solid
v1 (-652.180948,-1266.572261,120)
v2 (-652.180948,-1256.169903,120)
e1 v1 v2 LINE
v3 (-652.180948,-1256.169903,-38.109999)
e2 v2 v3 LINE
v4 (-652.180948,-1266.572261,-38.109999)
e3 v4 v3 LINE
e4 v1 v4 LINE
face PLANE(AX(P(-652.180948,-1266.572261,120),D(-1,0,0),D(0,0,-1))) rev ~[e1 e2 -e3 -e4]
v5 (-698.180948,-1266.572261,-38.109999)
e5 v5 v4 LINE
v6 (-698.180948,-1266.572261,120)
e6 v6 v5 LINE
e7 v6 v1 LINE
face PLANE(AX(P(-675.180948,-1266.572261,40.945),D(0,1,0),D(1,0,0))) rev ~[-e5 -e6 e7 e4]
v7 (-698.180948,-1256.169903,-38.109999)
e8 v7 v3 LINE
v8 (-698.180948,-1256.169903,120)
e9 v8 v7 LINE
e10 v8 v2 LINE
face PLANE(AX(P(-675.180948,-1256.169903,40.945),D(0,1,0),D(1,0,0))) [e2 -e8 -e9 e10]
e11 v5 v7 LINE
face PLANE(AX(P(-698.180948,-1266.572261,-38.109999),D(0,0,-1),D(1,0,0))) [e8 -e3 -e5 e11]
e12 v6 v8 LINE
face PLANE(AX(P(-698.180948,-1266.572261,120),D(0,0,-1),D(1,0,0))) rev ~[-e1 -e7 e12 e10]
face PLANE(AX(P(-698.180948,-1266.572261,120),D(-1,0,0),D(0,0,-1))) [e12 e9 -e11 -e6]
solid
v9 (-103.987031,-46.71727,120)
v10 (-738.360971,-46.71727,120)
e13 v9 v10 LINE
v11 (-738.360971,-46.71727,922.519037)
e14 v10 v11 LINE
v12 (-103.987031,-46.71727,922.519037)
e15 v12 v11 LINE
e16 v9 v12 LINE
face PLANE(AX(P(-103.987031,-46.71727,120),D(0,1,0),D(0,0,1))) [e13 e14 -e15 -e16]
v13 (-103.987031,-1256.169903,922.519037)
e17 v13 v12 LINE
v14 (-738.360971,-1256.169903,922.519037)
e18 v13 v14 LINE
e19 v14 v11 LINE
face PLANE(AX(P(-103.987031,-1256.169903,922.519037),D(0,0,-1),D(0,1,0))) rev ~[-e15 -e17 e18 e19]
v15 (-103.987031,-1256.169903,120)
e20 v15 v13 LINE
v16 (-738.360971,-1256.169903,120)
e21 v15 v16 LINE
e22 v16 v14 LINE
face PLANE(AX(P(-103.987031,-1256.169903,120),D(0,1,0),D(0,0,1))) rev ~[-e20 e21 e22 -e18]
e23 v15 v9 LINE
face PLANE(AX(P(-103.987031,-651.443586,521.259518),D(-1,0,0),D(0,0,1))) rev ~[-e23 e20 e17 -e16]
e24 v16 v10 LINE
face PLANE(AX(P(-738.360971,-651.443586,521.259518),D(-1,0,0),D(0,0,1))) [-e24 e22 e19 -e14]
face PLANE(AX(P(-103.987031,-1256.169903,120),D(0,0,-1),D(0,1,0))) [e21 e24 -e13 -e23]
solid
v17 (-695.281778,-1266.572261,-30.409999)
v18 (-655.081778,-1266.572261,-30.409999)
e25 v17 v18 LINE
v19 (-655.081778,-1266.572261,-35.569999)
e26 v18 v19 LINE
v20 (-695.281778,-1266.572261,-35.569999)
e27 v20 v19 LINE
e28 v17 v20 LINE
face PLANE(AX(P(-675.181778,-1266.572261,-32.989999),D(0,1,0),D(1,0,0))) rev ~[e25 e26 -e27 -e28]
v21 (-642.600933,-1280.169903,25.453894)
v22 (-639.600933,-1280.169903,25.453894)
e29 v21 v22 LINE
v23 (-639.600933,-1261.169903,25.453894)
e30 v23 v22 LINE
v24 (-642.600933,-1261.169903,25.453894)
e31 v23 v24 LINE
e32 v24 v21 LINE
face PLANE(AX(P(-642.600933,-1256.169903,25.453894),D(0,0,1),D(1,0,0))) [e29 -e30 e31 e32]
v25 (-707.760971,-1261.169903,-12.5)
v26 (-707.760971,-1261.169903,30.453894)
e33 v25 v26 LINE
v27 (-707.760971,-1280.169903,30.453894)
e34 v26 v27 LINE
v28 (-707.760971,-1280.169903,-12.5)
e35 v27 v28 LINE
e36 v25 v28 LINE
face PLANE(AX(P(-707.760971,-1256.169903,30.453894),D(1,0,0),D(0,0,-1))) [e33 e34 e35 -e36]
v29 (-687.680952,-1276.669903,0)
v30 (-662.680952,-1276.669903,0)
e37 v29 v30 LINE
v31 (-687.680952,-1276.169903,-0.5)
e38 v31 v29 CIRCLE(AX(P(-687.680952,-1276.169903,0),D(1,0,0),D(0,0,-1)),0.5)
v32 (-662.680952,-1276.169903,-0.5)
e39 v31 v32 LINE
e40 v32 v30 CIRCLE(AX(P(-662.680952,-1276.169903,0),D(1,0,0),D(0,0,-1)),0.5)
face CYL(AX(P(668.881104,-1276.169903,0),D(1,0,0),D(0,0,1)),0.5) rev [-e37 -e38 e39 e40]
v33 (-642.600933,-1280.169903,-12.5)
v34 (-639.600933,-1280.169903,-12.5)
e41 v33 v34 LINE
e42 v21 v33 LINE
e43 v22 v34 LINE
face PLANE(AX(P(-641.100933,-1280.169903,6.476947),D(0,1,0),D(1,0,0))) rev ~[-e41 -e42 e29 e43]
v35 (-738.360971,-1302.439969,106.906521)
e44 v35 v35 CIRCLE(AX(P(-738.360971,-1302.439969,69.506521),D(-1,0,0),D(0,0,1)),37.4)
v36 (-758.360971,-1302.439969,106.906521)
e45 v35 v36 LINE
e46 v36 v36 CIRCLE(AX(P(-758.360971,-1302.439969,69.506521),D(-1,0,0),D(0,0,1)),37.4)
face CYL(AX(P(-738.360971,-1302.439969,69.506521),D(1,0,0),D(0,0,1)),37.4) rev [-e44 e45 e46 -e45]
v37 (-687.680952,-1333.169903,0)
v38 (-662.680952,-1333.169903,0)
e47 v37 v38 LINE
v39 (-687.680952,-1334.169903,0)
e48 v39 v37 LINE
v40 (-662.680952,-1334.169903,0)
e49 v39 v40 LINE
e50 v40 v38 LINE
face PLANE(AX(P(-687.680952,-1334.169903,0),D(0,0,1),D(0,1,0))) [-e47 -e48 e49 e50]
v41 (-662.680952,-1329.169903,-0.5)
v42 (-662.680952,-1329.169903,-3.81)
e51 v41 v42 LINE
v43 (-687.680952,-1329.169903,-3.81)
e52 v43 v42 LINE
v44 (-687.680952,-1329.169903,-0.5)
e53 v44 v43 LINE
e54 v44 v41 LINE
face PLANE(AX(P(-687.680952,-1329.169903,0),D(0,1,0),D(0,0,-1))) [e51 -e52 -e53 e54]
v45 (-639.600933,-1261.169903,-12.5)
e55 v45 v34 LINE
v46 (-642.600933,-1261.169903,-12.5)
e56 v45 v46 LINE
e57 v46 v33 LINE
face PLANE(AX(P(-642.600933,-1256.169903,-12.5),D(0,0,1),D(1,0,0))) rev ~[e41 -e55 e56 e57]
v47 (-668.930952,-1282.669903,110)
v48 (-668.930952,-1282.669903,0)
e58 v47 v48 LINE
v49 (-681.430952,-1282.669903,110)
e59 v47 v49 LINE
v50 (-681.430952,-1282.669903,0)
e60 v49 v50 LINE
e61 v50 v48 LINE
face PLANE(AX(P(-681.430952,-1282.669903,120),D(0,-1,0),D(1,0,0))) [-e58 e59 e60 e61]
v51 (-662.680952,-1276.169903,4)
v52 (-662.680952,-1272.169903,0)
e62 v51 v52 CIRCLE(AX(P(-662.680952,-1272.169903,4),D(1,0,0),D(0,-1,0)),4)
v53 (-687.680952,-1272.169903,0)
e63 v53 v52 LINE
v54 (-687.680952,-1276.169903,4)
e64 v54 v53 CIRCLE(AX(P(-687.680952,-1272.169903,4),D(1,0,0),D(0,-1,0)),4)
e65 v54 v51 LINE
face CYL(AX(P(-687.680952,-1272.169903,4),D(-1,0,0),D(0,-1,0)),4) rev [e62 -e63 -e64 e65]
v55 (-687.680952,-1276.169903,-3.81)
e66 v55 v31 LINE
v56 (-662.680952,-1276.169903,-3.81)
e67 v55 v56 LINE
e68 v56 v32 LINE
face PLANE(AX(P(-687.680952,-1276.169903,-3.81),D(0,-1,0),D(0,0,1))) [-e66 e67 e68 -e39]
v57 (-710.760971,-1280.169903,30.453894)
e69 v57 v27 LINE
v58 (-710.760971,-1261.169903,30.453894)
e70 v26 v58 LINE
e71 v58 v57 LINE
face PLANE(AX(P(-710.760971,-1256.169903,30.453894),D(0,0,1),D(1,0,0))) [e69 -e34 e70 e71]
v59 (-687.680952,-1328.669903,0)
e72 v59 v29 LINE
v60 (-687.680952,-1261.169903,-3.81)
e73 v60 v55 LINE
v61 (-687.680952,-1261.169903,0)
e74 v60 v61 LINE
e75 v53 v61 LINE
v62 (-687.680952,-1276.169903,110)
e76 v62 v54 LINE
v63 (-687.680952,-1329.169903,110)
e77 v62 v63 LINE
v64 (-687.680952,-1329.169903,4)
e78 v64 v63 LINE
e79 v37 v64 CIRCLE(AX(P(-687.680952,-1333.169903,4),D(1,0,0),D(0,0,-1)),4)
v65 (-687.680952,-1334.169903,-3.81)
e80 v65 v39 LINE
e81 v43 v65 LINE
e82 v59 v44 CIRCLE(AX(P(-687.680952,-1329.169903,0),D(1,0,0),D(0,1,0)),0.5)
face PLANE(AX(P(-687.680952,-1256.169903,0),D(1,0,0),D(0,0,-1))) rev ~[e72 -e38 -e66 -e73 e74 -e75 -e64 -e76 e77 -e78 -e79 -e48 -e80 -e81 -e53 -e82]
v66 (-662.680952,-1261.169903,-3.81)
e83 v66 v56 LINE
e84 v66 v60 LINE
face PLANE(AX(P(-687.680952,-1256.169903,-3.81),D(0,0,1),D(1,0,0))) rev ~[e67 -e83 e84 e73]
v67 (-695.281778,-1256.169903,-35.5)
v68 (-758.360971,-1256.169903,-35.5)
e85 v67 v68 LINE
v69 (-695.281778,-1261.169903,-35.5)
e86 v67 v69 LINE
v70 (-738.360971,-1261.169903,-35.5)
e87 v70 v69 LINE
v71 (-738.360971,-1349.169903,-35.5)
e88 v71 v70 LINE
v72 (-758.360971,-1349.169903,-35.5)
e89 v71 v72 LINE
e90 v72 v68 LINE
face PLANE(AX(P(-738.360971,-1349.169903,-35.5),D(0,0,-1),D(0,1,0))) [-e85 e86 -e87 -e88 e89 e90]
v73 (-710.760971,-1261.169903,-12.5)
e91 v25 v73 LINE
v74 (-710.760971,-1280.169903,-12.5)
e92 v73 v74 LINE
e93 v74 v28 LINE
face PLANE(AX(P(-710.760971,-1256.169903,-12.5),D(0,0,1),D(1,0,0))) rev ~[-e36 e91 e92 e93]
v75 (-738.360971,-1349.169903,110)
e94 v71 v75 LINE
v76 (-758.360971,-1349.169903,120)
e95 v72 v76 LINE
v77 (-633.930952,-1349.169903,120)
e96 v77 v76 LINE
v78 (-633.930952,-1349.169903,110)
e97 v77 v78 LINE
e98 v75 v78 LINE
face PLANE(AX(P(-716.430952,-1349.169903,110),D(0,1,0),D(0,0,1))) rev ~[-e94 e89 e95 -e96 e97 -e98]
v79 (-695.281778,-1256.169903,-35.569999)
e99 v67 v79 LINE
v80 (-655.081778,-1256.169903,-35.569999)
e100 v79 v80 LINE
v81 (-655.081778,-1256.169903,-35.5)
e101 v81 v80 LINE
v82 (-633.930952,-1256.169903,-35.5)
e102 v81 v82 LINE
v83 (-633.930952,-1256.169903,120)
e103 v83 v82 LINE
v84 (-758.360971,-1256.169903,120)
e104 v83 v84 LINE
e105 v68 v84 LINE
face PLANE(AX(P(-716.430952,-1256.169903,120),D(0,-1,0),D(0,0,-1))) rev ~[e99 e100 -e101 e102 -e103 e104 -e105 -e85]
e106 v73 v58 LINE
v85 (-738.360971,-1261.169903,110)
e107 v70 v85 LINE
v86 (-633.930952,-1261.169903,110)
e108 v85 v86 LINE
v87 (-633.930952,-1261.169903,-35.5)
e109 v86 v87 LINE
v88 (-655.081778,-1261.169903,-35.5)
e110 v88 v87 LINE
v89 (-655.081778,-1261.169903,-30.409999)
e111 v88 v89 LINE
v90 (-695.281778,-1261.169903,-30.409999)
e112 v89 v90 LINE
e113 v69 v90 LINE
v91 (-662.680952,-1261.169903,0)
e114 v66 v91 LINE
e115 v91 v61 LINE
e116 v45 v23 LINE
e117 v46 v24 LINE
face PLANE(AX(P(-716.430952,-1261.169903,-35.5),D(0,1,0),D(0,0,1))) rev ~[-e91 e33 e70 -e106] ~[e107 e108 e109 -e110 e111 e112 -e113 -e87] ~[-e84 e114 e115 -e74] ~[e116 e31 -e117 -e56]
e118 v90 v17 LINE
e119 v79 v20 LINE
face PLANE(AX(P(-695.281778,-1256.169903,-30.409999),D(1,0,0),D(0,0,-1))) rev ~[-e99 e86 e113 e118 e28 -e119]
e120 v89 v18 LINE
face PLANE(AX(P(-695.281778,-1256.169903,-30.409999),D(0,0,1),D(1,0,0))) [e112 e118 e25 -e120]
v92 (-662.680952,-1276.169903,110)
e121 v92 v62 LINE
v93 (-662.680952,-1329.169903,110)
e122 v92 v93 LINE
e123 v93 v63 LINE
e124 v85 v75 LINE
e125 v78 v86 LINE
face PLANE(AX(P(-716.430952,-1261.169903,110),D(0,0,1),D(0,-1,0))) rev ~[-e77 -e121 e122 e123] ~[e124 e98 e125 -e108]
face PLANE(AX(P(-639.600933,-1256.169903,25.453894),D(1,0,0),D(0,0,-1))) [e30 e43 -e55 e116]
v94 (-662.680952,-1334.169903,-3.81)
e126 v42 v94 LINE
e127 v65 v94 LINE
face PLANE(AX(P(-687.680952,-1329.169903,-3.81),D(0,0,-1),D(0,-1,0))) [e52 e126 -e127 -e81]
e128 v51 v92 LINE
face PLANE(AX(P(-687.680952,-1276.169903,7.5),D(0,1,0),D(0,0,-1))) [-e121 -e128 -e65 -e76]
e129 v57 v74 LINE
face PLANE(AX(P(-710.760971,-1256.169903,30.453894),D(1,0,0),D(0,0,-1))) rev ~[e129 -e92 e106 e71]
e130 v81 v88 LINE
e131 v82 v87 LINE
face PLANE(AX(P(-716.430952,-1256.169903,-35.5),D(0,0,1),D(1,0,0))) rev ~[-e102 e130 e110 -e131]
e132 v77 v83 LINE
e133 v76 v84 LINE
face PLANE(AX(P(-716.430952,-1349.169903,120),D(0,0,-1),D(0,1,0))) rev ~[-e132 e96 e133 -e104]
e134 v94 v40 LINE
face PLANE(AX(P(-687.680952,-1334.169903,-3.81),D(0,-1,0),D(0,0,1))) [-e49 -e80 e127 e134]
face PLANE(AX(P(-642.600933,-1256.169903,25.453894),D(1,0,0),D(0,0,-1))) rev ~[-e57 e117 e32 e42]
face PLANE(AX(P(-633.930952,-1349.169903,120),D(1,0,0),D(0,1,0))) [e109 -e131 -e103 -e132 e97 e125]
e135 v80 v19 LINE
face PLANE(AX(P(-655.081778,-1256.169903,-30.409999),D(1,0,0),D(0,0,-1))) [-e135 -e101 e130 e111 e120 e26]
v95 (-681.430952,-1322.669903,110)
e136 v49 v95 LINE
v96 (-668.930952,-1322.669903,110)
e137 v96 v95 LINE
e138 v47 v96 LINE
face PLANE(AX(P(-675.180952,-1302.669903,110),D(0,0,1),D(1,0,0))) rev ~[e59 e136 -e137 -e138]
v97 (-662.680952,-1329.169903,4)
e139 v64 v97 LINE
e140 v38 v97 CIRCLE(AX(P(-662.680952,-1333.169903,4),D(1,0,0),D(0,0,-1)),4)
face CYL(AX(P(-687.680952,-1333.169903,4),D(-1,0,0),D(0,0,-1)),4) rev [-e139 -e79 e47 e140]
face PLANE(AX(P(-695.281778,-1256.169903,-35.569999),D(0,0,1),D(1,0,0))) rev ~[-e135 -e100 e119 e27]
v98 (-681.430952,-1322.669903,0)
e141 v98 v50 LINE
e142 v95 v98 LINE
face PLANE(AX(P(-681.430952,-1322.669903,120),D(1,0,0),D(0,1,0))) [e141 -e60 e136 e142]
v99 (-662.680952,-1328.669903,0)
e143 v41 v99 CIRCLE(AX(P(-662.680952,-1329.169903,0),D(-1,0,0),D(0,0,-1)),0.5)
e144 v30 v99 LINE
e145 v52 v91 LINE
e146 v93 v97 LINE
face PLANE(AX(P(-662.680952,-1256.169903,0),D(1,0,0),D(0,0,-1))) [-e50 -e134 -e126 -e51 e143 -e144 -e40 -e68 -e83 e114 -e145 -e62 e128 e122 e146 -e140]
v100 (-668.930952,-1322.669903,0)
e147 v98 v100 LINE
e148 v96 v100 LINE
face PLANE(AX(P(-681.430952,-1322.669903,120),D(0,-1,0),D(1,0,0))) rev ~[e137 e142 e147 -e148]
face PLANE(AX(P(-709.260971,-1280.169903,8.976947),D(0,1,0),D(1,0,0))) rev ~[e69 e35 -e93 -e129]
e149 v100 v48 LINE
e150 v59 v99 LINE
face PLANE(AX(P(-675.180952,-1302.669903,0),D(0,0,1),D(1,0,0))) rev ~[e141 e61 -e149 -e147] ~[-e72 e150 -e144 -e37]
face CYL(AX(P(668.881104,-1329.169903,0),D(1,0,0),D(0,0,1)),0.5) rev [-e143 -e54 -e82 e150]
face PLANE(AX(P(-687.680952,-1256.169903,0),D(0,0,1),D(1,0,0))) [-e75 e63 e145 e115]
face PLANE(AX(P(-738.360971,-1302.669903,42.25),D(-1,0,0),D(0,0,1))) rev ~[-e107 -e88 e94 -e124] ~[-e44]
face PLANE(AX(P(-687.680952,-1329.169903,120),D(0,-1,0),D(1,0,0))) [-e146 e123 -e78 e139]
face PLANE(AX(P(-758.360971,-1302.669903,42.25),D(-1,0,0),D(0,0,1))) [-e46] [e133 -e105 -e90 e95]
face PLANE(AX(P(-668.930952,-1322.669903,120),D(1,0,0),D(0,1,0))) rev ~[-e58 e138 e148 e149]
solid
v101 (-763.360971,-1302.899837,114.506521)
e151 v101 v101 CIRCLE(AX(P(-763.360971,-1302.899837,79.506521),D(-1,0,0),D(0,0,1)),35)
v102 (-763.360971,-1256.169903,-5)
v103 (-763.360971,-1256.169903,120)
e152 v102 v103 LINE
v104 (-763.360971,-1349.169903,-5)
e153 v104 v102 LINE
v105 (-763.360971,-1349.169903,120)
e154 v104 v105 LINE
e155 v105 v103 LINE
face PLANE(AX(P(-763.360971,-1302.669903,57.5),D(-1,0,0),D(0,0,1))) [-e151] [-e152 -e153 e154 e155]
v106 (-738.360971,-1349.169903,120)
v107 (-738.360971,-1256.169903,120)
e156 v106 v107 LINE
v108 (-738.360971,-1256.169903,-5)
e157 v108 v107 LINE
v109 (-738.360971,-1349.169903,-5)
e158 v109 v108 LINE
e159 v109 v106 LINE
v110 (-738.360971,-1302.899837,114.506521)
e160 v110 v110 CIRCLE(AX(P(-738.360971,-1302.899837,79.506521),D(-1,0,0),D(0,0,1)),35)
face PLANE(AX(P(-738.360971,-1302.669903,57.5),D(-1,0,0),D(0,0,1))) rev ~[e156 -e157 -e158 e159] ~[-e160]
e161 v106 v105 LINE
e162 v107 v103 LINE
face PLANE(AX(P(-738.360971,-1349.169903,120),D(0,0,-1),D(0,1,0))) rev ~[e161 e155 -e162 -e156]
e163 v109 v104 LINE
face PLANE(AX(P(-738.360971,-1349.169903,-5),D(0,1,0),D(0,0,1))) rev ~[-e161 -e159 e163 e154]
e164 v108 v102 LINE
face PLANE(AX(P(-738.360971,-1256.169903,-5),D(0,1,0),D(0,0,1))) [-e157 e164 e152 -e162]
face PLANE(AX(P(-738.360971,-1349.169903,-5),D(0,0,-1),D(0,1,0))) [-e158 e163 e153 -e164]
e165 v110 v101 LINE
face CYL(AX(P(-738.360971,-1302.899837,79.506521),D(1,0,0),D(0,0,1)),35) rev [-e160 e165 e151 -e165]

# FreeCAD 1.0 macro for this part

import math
import FreeCAD as App
import Part
import Sketcher

V = App.Vector


def add_polygon(sketch, points):
    """Adds a closed chain of lines whose ends are joined by coincident constraints."""
    first, n = sketch.GeometryCount, len(points)
    for a, b in zip(points, points[1:] + points[:1]):
        sketch.addGeometry(Part.LineSegment(App.Vector(*a, 0), App.Vector(*b, 0)), False)
    for i in range(n):
        sketch.addConstraint(Sketcher.Constraint("Coincident", first + i, 2, first + (i + 1) % n, 1))

doc = App.newDocument("Part")
params = doc.addObject("Spreadsheet::Sheet", "Params")
for row, (alias, value) in enumerate([
    ("sketch1_width", "25 mm"),
    ("sketch1_height", "53 mm"),
    ("sketch1_height2", "40 mm"),
    ("sketch1_width2", "12.5 mm"),
    ("pad1_length", "120 mm"),
    ("sketch2_height", "93 mm"),
    ("sketch2_width", "82.5 mm"),
    ("pad2_length", "10 mm"),
    ("sketch3_radius", "4 mm"),
    ("sketch3_width", "4 mm"),
    ("sketch3_width2", "1 mm"),
    ("sketch3_height", "7.5 mm"),
    ("sketch3_height2", "3.81 mm"),
    ("pad3_length", "25 mm"),
    ("sketch4_diameter", "1 mm"),
    ("sketch5_width", "25 mm"),
    ("sketch5_height", "3.81 mm"),
    ("pad4_length", "15 mm"),
    ("sketch6_width", "3 mm"),
    ("pad5_length", "24 mm"),
    ("sketch7_width", "3 mm"),
    ("pad6_length", "24 mm"),
    ("sketch8_width", "40.2 mm"),
    ("sketch8_height", "5.16 mm"),
    ("pad7_length", "10.402358 mm"),
    ("sketch9_width", "82.5 mm"),
    ("sketch9_height", "155.5 mm"),
    ("pad8_length", "5 mm"),
    ("sketch10_diameter", "74.8 mm"),
    ("sketch10_width", "93 mm"),
    ("sketch10_height", "155.5 mm"),
    ("pad9_length", "20 mm"),
    ("sketch11_width", "93 mm"),
    ("sketch11_width2", "5 mm"),
    ("sketch11_height", "10 mm"),
    ("sketch11_height2", "155.5 mm"),
    ("pad10_length", "21.930019 mm"),
    ("sketch12_diameter", "70 mm"),
    ("sketch12_width", "93 mm"),
    ("sketch12_height", "125 mm"),
    ("pad11_length", "25 mm"),
    ("pad12_length", "634.373941 mm"),
    ("sketch14_width", "46 mm"),
    ("sketch14_height", "158.109999 mm"),
    ("pad13_length", "10.402358 mm"),
], start=1):
    params.set(f"A{row}", alias)
    params.set(f"B{row}", "=" + value)
    params.setAlias(f"B{row}", alias)

body = doc.addObject("PartDesign::Body", "Body")

# Sketch on XY plane
sketch1 = doc.addObject("Sketcher::SketchObject", "Sketch")
body.addObject(sketch1)
sketch1.AttachmentSupport = (doc.XY_Plane, [""])
sketch1.MapMode = "FlatFace"
sketch1.AttachmentOffset = App.Placement(V(0, 0, 120), App.Rotation())
add_polygon(sketch1, [(-688, -1276), (-688, -1329), (-663, -1329), (-663, -1276)])  # lines 0-3
add_polygon(sketch1, [(-669, -1323), (-681, -1323), (-681, -1283), (-669, -1283)])  # lines 4-7
sketch1.addConstraint([
    Sketcher.Constraint("Vertical", 0),
    Sketcher.Constraint("Horizontal", 1),
    Sketcher.Constraint("Vertical", 2),
    Sketcher.Constraint("Horizontal", 3),
    Sketcher.Constraint("Horizontal", 4),
    Sketcher.Constraint("Vertical", 5),
    Sketcher.Constraint("Horizontal", 6),
    Sketcher.Constraint("Vertical", 7),
    Sketcher.Constraint("DistanceX", 1, 1, 1, 2, 25.0),
    Sketcher.Constraint("DistanceY", 0, 2, 0, 1, 53.0),
    Sketcher.Constraint("DistanceY", 5, 1, 5, 2, 40.0),
    Sketcher.Constraint("DistanceX", 4, 2, 4, 1, 12.5),
    Sketcher.Constraint("DistanceY", 0, 2, 4, 2, 6.5),
    Sketcher.Constraint("DistanceX", 0, 2, 4, 2, 6.25),
    Sketcher.Constraint("DistanceX", 0, 2, -1, 1, 687.680952),
    Sketcher.Constraint("DistanceY", 0, 2, -1, 1, 1329.169903),
])
sketch1.setExpression("Constraints[16]", "Params.sketch1_width")
sketch1.setExpression("Constraints[17]", "Params.sketch1_height")
sketch1.setExpression("Constraints[18]", "Params.sketch1_height2")
sketch1.setExpression("Constraints[19]", "Params.sketch1_width2")
pad1 = doc.addObject("PartDesign::Pad", "Pad")
body.addObject(pad1)
pad1.Profile = sketch1
pad1.setExpression("Length", "Params.pad1_length")
pad1.Reversed = True

# Sketch on XY plane
sketch2 = doc.addObject("Sketcher::SketchObject", "Sketch001")
body.addObject(sketch2)
sketch2.AttachmentSupport = (doc.XY_Plane, [""])
sketch2.MapMode = "FlatFace"
sketch2.AttachmentOffset = App.Placement(V(0, 0, 120), App.Rotation())
add_polygon(sketch2, [(-716, -1256), (-716, -1349), (-634, -1349), (-634, -1256)])  # lines 0-3
sketch2.addConstraint([
    Sketcher.Constraint("Vertical", 0),
    Sketcher.Constraint("Horizontal", 1),
    Sketcher.Constraint("Vertical", 2),
    Sketcher.Constraint("Horizontal", 3),
    Sketcher.Constraint("DistanceY", 0, 2, 0, 1, 93.0),
    Sketcher.Constraint("DistanceX", 1, 1, 1, 2, 82.5),
    Sketcher.Constraint("DistanceX", 0, 2, -1, 1, 716.430952),
    Sketcher.Constraint("DistanceY", 0, 2, -1, 1, 1349.169903),
])
sketch2.setExpression("Constraints[8]", "Params.sketch2_height")
sketch2.setExpression("Constraints[9]", "Params.sketch2_width")
pad2 = doc.addObject("PartDesign::Pad", "Pad001")
body.addObject(pad2)
pad2.Profile = sketch2
pad2.setExpression("Length", "Params.pad2_length")
pad2.Reversed = True

# Sketch on YZ plane
sketch3 = doc.addObject("Sketcher::SketchObject", "Sketch002")
body.addObject(sketch3)
sketch3.AttachmentSupport = (doc.YZ_Plane, [""])
sketch3.MapMode = "FlatFace"
sketch3.AttachmentOffset = App.Placement(V(0, 0, -687.680952), App.Rotation())
sketch3.addGeometry([
    Part.LineSegment(V(-1276.2, -3.8, 0), V(-1276.2, 0, 0)),  # 0
    Part.LineSegment(V(-1276.2, 0, 0), V(-1280.2, 0, 0)),  # 1
    Part.LineSegment(V(-1280.2, 0, 0), V(-1280.2, 7.5, 0)),  # 2
    Part.LineSegment(V(-1280.2, 7.5, 0), V(-1276.2, 7.5, 0)),  # 3
    Part.LineSegment(V(-1276.2, 7.5, 0), V(-1276.2, 4, 0)),  # 4
    Part.ArcOfCircle(Part.Circle(V(-1272.2, 4, 0), V(0, 0, 1), 4), math.radians(180), math.radians(270)),  # 5
    Part.LineSegment(V(-1272.2, 0, 0), V(-1271.2, 0, 0)),  # 6
    Part.LineSegment(V(-1271.2, 0, 0), V(-1271.2, -3.8, 0)),  # 7
    Part.LineSegment(V(-1271.2, -3.8, 0), V(-1276.2, -3.8, 0)),  # 8
    Part.LineSegment(V(-1329.2, 7.5, 0), V(-1325.2, 7.5, 0)),  # 9
    Part.LineSegment(V(-1325.2, 7.5, 0), V(-1325.2, 0, 0)),  # 10
    Part.LineSegment(V(-1325.2, 0, 0), V(-1329.2, 0, 0)),  # 11
    Part.LineSegment(V(-1329.2, 0, 0), V(-1329.2, -3.8, 0)),  # 12
    Part.LineSegment(V(-1329.2, -3.8, 0), V(-1334.2, -3.8, 0)),  # 13
    Part.LineSegment(V(-1334.2, -3.8, 0), V(-1334.2, 0, 0)),  # 14
    Part.LineSegment(V(-1334.2, 0, 0), V(-1333.2, 0, 0)),  # 15
    Part.ArcOfCircle(Part.Circle(V(-1333.2, 4, 0), V(0, 0, 1), 4), math.radians(-90), math.radians(0)),  # 16
    Part.LineSegment(V(-1329.2, 4, 0), V(-1329.2, 7.5, 0)),  # 17
], False)
sketch3.addConstraint([
    Sketcher.Constraint("Coincident", 0, 2, 1, 1),
    Sketcher.Constraint("Coincident", 1, 2, 2, 1),
    Sketcher.Constraint("Coincident", 2, 2, 3, 1),
    Sketcher.Constraint("Coincident", 3, 2, 4, 1),
    Sketcher.Constraint("Tangent", 4, 2, 5, 1),
    Sketcher.Constraint("Tangent", 5, 2, 6, 1),
    Sketcher.Constraint("Coincident", 6, 2, 7, 1),
    Sketcher.Constraint("Coincident", 7, 2, 8, 1),
    Sketcher.Constraint("Coincident", 8, 2, 0, 1),
    Sketcher.Constraint("Coincident", 9, 2, 10, 1),
    Sketcher.Constraint("Coincident", 10, 2, 11, 1),
    Sketcher.Constraint("Coincident", 11, 2, 12, 1),
    Sketcher.Constraint("Coincident", 12, 2, 13, 1),
    Sketcher.Constraint("Coincident", 13, 2, 14, 1),
    Sketcher.Constraint("Coincident", 14, 2, 15, 1),
    Sketcher.Constraint("Tangent", 15, 2, 16, 1),
    Sketcher.Constraint("Tangent", 16, 2, 17, 1),
    Sketcher.Constraint("Coincident", 17, 2, 9, 1),
    Sketcher.Constraint("Vertical", 0),
    Sketcher.Constraint("Horizontal", 1),
    Sketcher.Constraint("Vertical", 2),
    Sketcher.Constraint("Horizontal", 3),
    Sketcher.Constraint("Vertical", 4),
    Sketcher.Constraint("Horizontal", 6),
    Sketcher.Constraint("Vertical", 7),
    Sketcher.Constraint("Horizontal", 8),
    Sketcher.Constraint("Horizontal", 9),
    Sketcher.Constraint("Vertical", 10),
    Sketcher.Constraint("Horizontal", 11),
    Sketcher.Constraint("Vertical", 12),
    Sketcher.Constraint("Horizontal", 13),
    Sketcher.Constraint("Vertical", 14),
    Sketcher.Constraint("Horizontal", 15),
    Sketcher.Constraint("Vertical", 17),
    Sketcher.Constraint("Equal", 5, 16),
    Sketcher.Constraint("PointOnObject", 0, 2, -1),
    Sketcher.Constraint("PointOnObject", 5, 2, -1),
    Sketcher.Constraint("PointOnObject", 10, 2, -1),
    Sketcher.Constraint("PointOnObject", 14, 2, -1),
    Sketcher.Constraint("Horizontal", 3, 2, 9, 2),
    Sketcher.Constraint("Horizontal", 8, 2, 12, 2),
    Sketcher.Constraint("Vertical", 0, 2, 3, 2),
    Sketcher.Constraint("Vertical", 12, 2, 16, 2),
    Sketcher.Constraint("Equal", 3, 9),
    Sketcher.Constraint("Equal", 8, 13),
    Sketcher.Constraint("Radius", 5, 4.0),
    Sketcher.Constraint("DistanceX", 1, 2, 1, 1, 4.0),
    Sketcher.Constraint("DistanceX", 6, 1, 6, 2, 1.0),
    Sketcher.Constraint("DistanceY", 2, 1, 2, 2, 7.5),
    Sketcher.Constraint("DistanceX", 16, 3, 5, 3, 61.0),
    Sketcher.Constraint("DistanceY", 0, 1, 0, 2, 3.81),
    Sketcher.Constraint("DistanceX", 5, 3, -1, 1, 1272.169903),
])
sketch3.setExpression("Constraints[45]", "Params.sketch3_radius")
sketch3.setExpression("Constraints[46]", "Params.sketch3_width")
sketch3.setExpression("Constraints[47]", "Params.sketch3_width2")
sketch3.setExpression("Constraints[48]", "Params.sketch3_height")
sketch3.setExpression("Constraints[50]", "Params.sketch3_height2")
pad3 = doc.addObject("PartDesign::Pad", "Pad002")
body.addObject(pad3)
pad3.Profile = sketch3
pad3.setExpression("Length", "Params.pad3_length")

# Sketch on YZ plane
sketch4 = doc.addObject("Sketcher::SketchObject", "Sketch003")
body.addObject(sketch4)
sketch4.AttachmentSupport = (doc.YZ_Plane, [""])
sketch4.MapMode = "FlatFace"
sketch4.AttachmentOffset = App.Placement(V(0, 0, -687.680952), App.Rotation())
sketch4.addGeometry([
    Part.Circle(V(-1329.2, 0, 0), V(0, 0, 1), 0.5),
    Part.Circle(V(-1276.2, 0, 0), V(0, 0, 1), 0.5),
], False)
sketch4.addConstraint([
    Sketcher.Constraint("Equal", 0, 1),
    Sketcher.Constraint("PointOnObject", 0, 3, -1),
    Sketcher.Constraint("PointOnObject", 1, 3, -1),
    Sketcher.Constraint("Diameter", 0, 1.0),
    Sketcher.Constraint("DistanceX", 0, 3, 1, 3, 53.0),
    Sketcher.Constraint("DistanceX", 0, 3, -1, 1, 1329.169903),
])
sketch4.setExpression("Constraints[3]", "Params.sketch4_diameter")
pocket1 = doc.addObject("PartDesign::Pocket", "Pocket")
body.addObject(pocket1)
pocket1.Profile = sketch4
pocket1.Type = "ThroughAll"
pocket1.Midplane = True

# Sketch on XZ plane
sketch5 = doc.addObject("Sketcher::SketchObject", "Sketch004")
body.addObject(sketch5)
sketch5.AttachmentSupport = (doc.XZ_Plane, [""])
sketch5.MapMode = "FlatFace"
sketch5.AttachmentOffset = App.Placement(V(0, 0, 1256.169903), App.Rotation())
add_polygon(sketch5, [(-687.7, -3.8), (-687.7, 0), (-662.7, 0), (-662.7, -3.8)])  # lines 0-3
sketch5.addConstraint([
    Sketcher.Constraint("Vertical", 0),
    Sketcher.Constraint("Horizontal", 1),
    Sketcher.Constraint("Vertical", 2),
    Sketcher.Constraint("Horizontal", 3),
    Sketcher.Constraint("PointOnObject", 0, 2, -1),
    Sketcher.Constraint("DistanceX", 1, 1, 1, 2, 25.0),
    Sketcher.Constraint("DistanceY", 0, 1, 0, 2, 3.81),
    Sketcher.Constraint("DistanceX", 0, 2, -1, 1, 687.680952),
])
sketch5.setExpression("Constraints[9]", "Params.sketch5_width")
sketch5.setExpression("Constraints[10]", "Params.sketch5_height")
pad4 = doc.addObject("PartDesign::Pad", "Pad003")
body.addObject(pad4)
pad4.Profile = sketch5
pad4.setExpression("Length", "Params.pad4_length")
body2 = doc.addObject("PartDesign::Body", "Body001")

# Sketch on XZ plane
sketch6 = doc.addObject("Sketcher::SketchObject", "Sketch005")
body2.addObject(sketch6)
sketch6.AttachmentSupport = (doc.getObject("XZ_Plane001"), [""])
sketch6.MapMode = "FlatFace"
sketch6.AttachmentOffset = App.Placement(V(0, 0, 1256.169903), App.Rotation())
add_polygon(sketch6, [(-710.8, -12.5), (-710.8, 30.5), (-707.8, 30.5), (-707.8, -12.5)])  # lines 0-3
sketch6.addConstraint([
    Sketcher.Constraint("Vertical", 0),
    Sketcher.Constraint("Horizontal", 1),
    Sketcher.Constraint("Vertical", 2),
    Sketcher.Constraint("Horizontal", 3),
    Sketcher.Constraint("DistanceX", 1, 1, 1, 2, 3.0),
    Sketcher.Constraint("DistanceY", 2, 2, -1, 1, 12.5),
    Sketcher.Constraint("DistanceY", 0, 1, 0, 2, 42.953894),
    Sketcher.Constraint("DistanceX", 0, 2, -1, 1, 710.760971),
])
sketch6.setExpression("Constraints[8]", "Params.sketch6_width")
pad5 = doc.addObject("PartDesign::Pad", "Pad004")
body2.addObject(pad5)
pad5.Profile = sketch6
pad5.setExpression("Length", "Params.pad5_length")
body3 = doc.addObject("PartDesign::Body", "Body002")

# Sketch on XZ plane
sketch7 = doc.addObject("Sketcher::SketchObject", "Sketch006")
body3.addObject(sketch7)
sketch7.AttachmentSupport = (doc.getObject("XZ_Plane002"), [""])
sketch7.MapMode = "FlatFace"
sketch7.AttachmentOffset = App.Placement(V(0, 0, 1256.169903), App.Rotation())
add_polygon(sketch7, [(-642.6, -12.5), (-642.6, 25.5), (-639.6, 25.5), (-639.6, -12.5)])  # lines 0-3
sketch7.addConstraint([
    Sketcher.Constraint("Vertical", 0),
    Sketcher.Constraint("Horizontal", 1),
    Sketcher.Constraint("Vertical", 2),
    Sketcher.Constraint("Horizontal", 3),
    Sketcher.Constraint("DistanceX", 1, 1, 1, 2, 3.0),
    Sketcher.Constraint("DistanceY", 2, 2, -1, 1, 12.5),
    Sketcher.Constraint("DistanceY", 0, 1, 0, 2, 37.953894),
    Sketcher.Constraint("DistanceX", 0, 2, -1, 1, 642.600933),
])
sketch7.setExpression("Constraints[8]", "Params.sketch7_width")
pad6 = doc.addObject("PartDesign::Pad", "Pad005")
body3.addObject(pad6)
pad6.Profile = sketch7
pad6.setExpression("Length", "Params.pad6_length")
body4 = doc.addObject("PartDesign::Body", "Body003")

# Sketch on XZ plane
sketch8 = doc.addObject("Sketcher::SketchObject", "Sketch007")
body4.addObject(sketch8)
sketch8.AttachmentSupport = (doc.getObject("XZ_Plane003"), [""])
sketch8.MapMode = "FlatFace"
sketch8.AttachmentOffset = App.Placement(V(0, 0, 1256.169903), App.Rotation())
add_polygon(sketch8, [(-695, -36), (-695, -30), (-655, -30), (-655, -36)])  # lines 0-3
sketch8.addConstraint([
    Sketcher.Constraint("Vertical", 0),
    Sketcher.Constraint("Horizontal", 1),
    Sketcher.Constraint("Vertical", 2),
    Sketcher.Constraint("Horizontal", 3),
    Sketcher.Constraint("DistanceX", 1, 1, 1, 2, 40.2),
    Sketcher.Constraint("DistanceY", 0, 1, 0, 2, 5.16),
    Sketcher.Constraint("DistanceY", 0, 2, -1, 1, 30.409999),
    Sketcher.Constraint("DistanceX", 0, 2, -1, 1, 695.281778),
])
sketch8.setExpression("Constraints[8]", "Params.sketch8_width")
sketch8.setExpression("Constraints[9]", "Params.sketch8_height")
pad7 = doc.addObject("PartDesign::Pad", "Pad006")
body4.addObject(pad7)
pad7.Profile = sketch8
pad7.setExpression("Length", "Params.pad7_length")
body.AllowCompound = True
doc.recompute()

boolean = doc.addObject("PartDesign::Boolean", "Boolean")
body.addObject(boolean)
boolean.Type = "Fuse"
boolean.addObjects([body2])
doc.recompute()

boolean2 = doc.addObject("PartDesign::Boolean", "Boolean001")
body.addObject(boolean2)
boolean2.Type = "Fuse"
boolean2.addObjects([body3])
doc.recompute()

boolean3 = doc.addObject("PartDesign::Boolean", "Boolean002")
body.addObject(boolean3)
boolean3.Type = "Fuse"
boolean3.addObjects([body4])

# Sketch on XZ plane
sketch9 = doc.addObject("Sketcher::SketchObject", "Sketch008")
body.addObject(sketch9)
sketch9.AttachmentSupport = (doc.XZ_Plane, [""])
sketch9.MapMode = "FlatFace"
sketch9.AttachmentOffset = App.Placement(V(0, 0, 1256.169903), App.Rotation())
add_polygon(sketch9, [(-716, -36), (-716, 120), (-634, 120), (-634, -36)])  # lines 0-3
sketch9.addConstraint([
    Sketcher.Constraint("Vertical", 0),
    Sketcher.Constraint("Horizontal", 1),
    Sketcher.Constraint("Vertical", 2),
    Sketcher.Constraint("Horizontal", 3),
    Sketcher.Constraint("DistanceX", 1, 1, 1, 2, 82.5),
    Sketcher.Constraint("DistanceY", 0, 1, 0, 2, 155.5),
    Sketcher.Constraint("DistanceY", -1, 1, 0, 2, 120.0),
    Sketcher.Constraint("DistanceX", 0, 2, -1, 1, 716.430952),
])
sketch9.setExpression("Constraints[8]", "Params.sketch9_width")
sketch9.setExpression("Constraints[9]", "Params.sketch9_height")
pad8 = doc.addObject("PartDesign::Pad", "Pad007")
body.addObject(pad8)
pad8.Profile = sketch9
pad8.setExpression("Length", "Params.pad8_length")
body5 = doc.addObject("PartDesign::Body", "Body004")

# Sketch on YZ plane
sketch10 = doc.addObject("Sketcher::SketchObject", "Sketch009")
body5.addObject(sketch10)
sketch10.AttachmentSupport = (doc.getObject("YZ_Plane004"), [""])
sketch10.MapMode = "FlatFace"
sketch10.AttachmentOffset = App.Placement(V(0, 0, -738.360971), App.Rotation())
add_polygon(sketch10, [(-1256, -36), (-1349, -36), (-1349, 120), (-1256, 120)])  # lines 0-3
sketch10.addGeometry(Part.Circle(V(-1302, 70, 0), V(0, 0, 1), 37), False)  # 4
sketch10.addConstraint([
    Sketcher.Constraint("Horizontal", 0),
    Sketcher.Constraint("Vertical", 1),
    Sketcher.Constraint("Horizontal", 2),
    Sketcher.Constraint("Vertical", 3),
    Sketcher.Constraint("Diameter", 4, 74.8),
    Sketcher.Constraint("DistanceX", 0, 2, 0, 1, 93.0),
    Sketcher.Constraint("DistanceY", 1, 1, 1, 2, 155.5),
    Sketcher.Constraint("DistanceY", -1, 1, 1, 2, 120.0),
    Sketcher.Constraint("DistanceX", 4, 3, -1, 1, 1302.439969),
    Sketcher.Constraint("DistanceY", -1, 1, 4, 3, 69.506521),
    Sketcher.Constraint("DistanceX", 0, 2, -1, 1, 1349.169903),
])
sketch10.setExpression("Constraints[8]", "Params.sketch10_diameter")
sketch10.setExpression("Constraints[9]", "Params.sketch10_width")
sketch10.setExpression("Constraints[10]", "Params.sketch10_height")
pad9 = doc.addObject("PartDesign::Pad", "Pad008")
body5.addObject(pad9)
pad9.Profile = sketch10
pad9.setExpression("Length", "Params.pad9_length")
pad9.Reversed = True
body.AllowCompound = True
doc.recompute()

boolean4 = doc.addObject("PartDesign::Boolean", "Boolean003")
body.addObject(boolean4)
boolean4.Type = "Fuse"
boolean4.addObjects([body5])

# Sketch on YZ plane
sketch11 = doc.addObject("Sketcher::SketchObject", "Sketch010")
body.addObject(sketch11)
sketch11.AttachmentSupport = (doc.YZ_Plane, [""])
sketch11.MapMode = "FlatFace"
sketch11.AttachmentOffset = App.Placement(V(0, 0, -716.430952), App.Rotation())
add_polygon(sketch11, [(-1349, 110), (-1349, 120), (-1256, 120), (-1256, -36), (-1261, -36), (-1261, 110)])  # lines 0-5
sketch11.addConstraint([
    Sketcher.Constraint("Vertical", 0),
    Sketcher.Constraint("Horizontal", 1),
    Sketcher.Constraint("Vertical", 2),
    Sketcher.Constraint("Horizontal", 3),
    Sketcher.Constraint("Vertical", 4),
    Sketcher.Constraint("Horizontal", 5),
    Sketcher.Constraint("DistanceX", 1, 1, 1, 2, 93.0),
    Sketcher.Constraint("DistanceX", 3, 2, 3, 1, 5.0),
    Sketcher.Constraint("DistanceY", 0, 1, 0, 2, 10.0),
    Sketcher.Constraint("DistanceY", 2, 2, 2, 1, 155.5),
    Sketcher.Constraint("DistanceY", -1, 1, 0, 2, 120.0),
    Sketcher.Constraint("DistanceX", 0, 2, -1, 1, 1349.169903),
])
sketch11.setExpression("Constraints[12]", "Params.sketch11_width")
sketch11.setExpression("Constraints[13]", "Params.sketch11_width2")
sketch11.setExpression("Constraints[14]", "Params.sketch11_height")
sketch11.setExpression("Constraints[15]", "Params.sketch11_height2")
pad10 = doc.addObject("PartDesign::Pad", "Pad009")
body.addObject(pad10)
pad10.Profile = sketch11
pad10.setExpression("Length", "Params.pad10_length")
pad10.Reversed = True
body6 = doc.addObject("PartDesign::Body", "Body005")

# Sketch on YZ plane
sketch12 = doc.addObject("Sketcher::SketchObject", "Sketch011")
body6.addObject(sketch12)
sketch12.AttachmentSupport = (doc.getObject("YZ_Plane005"), [""])
sketch12.MapMode = "FlatFace"
sketch12.AttachmentOffset = App.Placement(V(0, 0, -738.360971), App.Rotation())
add_polygon(sketch12, [(-1256, -5), (-1349, -5), (-1349, 120), (-1256, 120)])  # lines 0-3
sketch12.addGeometry(Part.Circle(V(-1303, 80, 0), V(0, 0, 1), 35), False)  # 4
sketch12.addConstraint([
    Sketcher.Constraint("Horizontal", 0),
    Sketcher.Constraint("Vertical", 1),
    Sketcher.Constraint("Horizontal", 2),
    Sketcher.Constraint("Vertical", 3),
    Sketcher.Constraint("Diameter", 4, 70.0),
    Sketcher.Constraint("DistanceX", 0, 2, 0, 1, 93.0),
    Sketcher.Constraint("DistanceY", 1, 1, 1, 2, 125.0),
    Sketcher.Constraint("DistanceY", 0, 2, -1, 1, 5.0),
    Sketcher.Constraint("DistanceY", -1, 1, 4, 3, 79.506521),
    Sketcher.Constraint("DistanceX", 4, 3, -1, 1, 1302.899837),
    Sketcher.Constraint("DistanceX", 0, 2, -1, 1, 1349.169903),
])
sketch12.setExpression("Constraints[8]", "Params.sketch12_diameter")
sketch12.setExpression("Constraints[9]", "Params.sketch12_width")
sketch12.setExpression("Constraints[10]", "Params.sketch12_height")
pad11 = doc.addObject("PartDesign::Pad", "Pad010")
body6.addObject(pad11)
pad11.Profile = sketch12
pad11.setExpression("Length", "Params.pad11_length")
pad11.Reversed = True
body7 = doc.addObject("PartDesign::Body", "Body006")

# Sketch on YZ plane
sketch13 = doc.addObject("Sketcher::SketchObject", "Sketch012")
body7.addObject(sketch13)
sketch13.AttachmentSupport = (doc.getObject("YZ_Plane006"), [""])
sketch13.MapMode = "FlatFace"
sketch13.AttachmentOffset = App.Placement(V(0, 0, -103.987031), App.Rotation())
add_polygon(sketch13, [(-47, 120), (-1256, 120), (-1256, 923), (-47, 923)])  # lines 0-3
sketch13.addConstraint([
    Sketcher.Constraint("Horizontal", 0),
    Sketcher.Constraint("Vertical", 1),
    Sketcher.Constraint("Horizontal", 2),
    Sketcher.Constraint("Vertical", 3),
    Sketcher.Constraint("DistanceY", -1, 1, 0, 2, 120.0),
    Sketcher.Constraint("DistanceX", 0, 2, 0, 1, 1209.452633),
    Sketcher.Constraint("DistanceY", 1, 1, 1, 2, 802.519037),
    Sketcher.Constraint("DistanceX", 2, 2, -1, 1, 46.71727),
])
pad12 = doc.addObject("PartDesign::Pad", "Pad011")
body7.addObject(pad12)
pad12.Profile = sketch13
pad12.setExpression("Length", "Params.pad12_length")
pad12.Reversed = True
body8 = doc.addObject("PartDesign::Body", "Body007")

# Sketch on XZ plane
sketch14 = doc.addObject("Sketcher::SketchObject", "Sketch013")
body8.addObject(sketch14)
sketch14.AttachmentSupport = (doc.getObject("XZ_Plane007"), [""])
sketch14.MapMode = "FlatFace"
sketch14.AttachmentOffset = App.Placement(V(0, 0, 1266.572261), App.Rotation())
add_polygon(sketch14, [(-698, -38), (-698, 120), (-652, 120), (-652, -38)])  # lines 0-3
sketch14.addConstraint([
    Sketcher.Constraint("Vertical", 0),
    Sketcher.Constraint("Horizontal", 1),
    Sketcher.Constraint("Vertical", 2),
    Sketcher.Constraint("Horizontal", 3),
    Sketcher.Constraint("DistanceX", 1, 1, 1, 2, 46.0),
    Sketcher.Constraint("DistanceY", -1, 1, 0, 2, 120.0),
    Sketcher.Constraint("DistanceY", 0, 1, 0, 2, 158.109999),
    Sketcher.Constraint("DistanceX", 0, 2, -1, 1, 698.180948),
])
sketch14.setExpression("Constraints[8]", "Params.sketch14_width")
sketch14.setExpression("Constraints[10]", "Params.sketch14_height")
pad13 = doc.addObject("PartDesign::Pad", "Pad012")
body8.addObject(pad13)
pad13.Profile = sketch14
pad13.setExpression("Length", "Params.pad13_length")
pad13.Reversed = True

doc.recompute()
